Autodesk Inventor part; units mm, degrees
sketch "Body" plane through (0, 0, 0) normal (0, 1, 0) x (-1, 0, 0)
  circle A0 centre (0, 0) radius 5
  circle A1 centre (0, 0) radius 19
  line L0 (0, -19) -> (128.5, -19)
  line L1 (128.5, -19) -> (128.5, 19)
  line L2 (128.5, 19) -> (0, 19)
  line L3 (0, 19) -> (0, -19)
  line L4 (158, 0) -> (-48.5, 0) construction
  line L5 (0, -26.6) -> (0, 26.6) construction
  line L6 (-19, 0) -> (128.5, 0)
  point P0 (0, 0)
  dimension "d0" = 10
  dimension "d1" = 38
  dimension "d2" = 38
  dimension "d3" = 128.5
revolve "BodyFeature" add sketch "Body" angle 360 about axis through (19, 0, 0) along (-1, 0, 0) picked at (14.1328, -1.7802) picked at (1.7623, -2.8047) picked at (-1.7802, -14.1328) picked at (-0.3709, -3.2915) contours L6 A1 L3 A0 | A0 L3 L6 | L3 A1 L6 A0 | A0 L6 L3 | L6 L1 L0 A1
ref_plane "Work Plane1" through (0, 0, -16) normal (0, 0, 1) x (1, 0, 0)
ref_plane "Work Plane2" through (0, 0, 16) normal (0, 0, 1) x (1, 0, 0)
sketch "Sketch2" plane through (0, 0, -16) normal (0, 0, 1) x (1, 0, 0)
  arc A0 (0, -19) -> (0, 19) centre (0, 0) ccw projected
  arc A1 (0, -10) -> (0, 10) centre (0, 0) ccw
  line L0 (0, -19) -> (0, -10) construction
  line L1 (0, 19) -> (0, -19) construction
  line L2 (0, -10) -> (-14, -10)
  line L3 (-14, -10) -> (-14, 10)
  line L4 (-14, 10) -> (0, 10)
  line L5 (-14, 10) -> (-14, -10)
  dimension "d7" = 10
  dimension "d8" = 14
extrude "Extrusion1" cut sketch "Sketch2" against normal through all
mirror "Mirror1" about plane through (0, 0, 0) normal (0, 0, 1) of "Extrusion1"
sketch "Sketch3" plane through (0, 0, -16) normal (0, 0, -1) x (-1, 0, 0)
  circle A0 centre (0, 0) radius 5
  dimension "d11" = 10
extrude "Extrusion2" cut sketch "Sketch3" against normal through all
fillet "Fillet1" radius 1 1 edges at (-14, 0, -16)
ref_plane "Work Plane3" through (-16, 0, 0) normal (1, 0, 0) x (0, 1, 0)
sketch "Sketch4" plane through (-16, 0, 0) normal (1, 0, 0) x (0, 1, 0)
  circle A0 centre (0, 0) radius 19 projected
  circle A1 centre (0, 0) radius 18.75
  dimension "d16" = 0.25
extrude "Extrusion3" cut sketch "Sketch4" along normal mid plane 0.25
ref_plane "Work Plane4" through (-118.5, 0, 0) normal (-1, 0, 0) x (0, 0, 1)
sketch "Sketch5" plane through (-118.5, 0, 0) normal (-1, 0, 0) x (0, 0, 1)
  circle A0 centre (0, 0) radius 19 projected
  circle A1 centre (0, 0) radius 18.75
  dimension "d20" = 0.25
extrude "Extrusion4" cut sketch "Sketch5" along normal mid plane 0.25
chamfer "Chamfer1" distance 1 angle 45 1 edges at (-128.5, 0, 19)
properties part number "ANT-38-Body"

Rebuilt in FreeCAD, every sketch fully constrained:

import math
import FreeCAD as App
import Part
import Sketcher

V = App.Vector


def edges_at(feature, points):
    """Names of the edges that pass closest to the given points."""
    edges = feature.Shape.Edges
    near = lambda p: min(range(len(edges)), key=lambda i: edges[i].distToShape(Part.Vertex(*p))[0])
    return sorted({f"Edge{near(p) + 1}" for p in points})

doc = App.newDocument("Part")
body = doc.addObject("PartDesign::Body", "Body")

sketch1 = body.newObject("Sketcher::SketchObject", "Sketch")
sketch1.AttachmentSupport = (doc.getObject("XZ_Plane"), [""])
sketch1.MapMode = "FlatFace"
sketch1.addGeometry([
    Part.ArcOfCircle(Part.Circle(V(0, 0, 0), V(0, 0, 1), 19), math.radians(-90), math.radians(0)),
    Part.LineSegment(V(0, -19, 0), V(-128, -19, 0)),
    Part.LineSegment(V(-128, -19, 0), V(-128, 0, 0)),
    Part.LineSegment(V(-128, 0, 0), V(19, 0, 0)),
], False)
sketch1.addConstraint([
    Sketcher.Constraint("Tangent", 0, 1, 1, 1),
    Sketcher.Constraint("Coincident", 1, 2, 2, 1),
    Sketcher.Constraint("Coincident", 2, 2, 3, 1),
    Sketcher.Constraint("Coincident", 3, 2, 0, 2),
    Sketcher.Constraint("Horizontal", 1),
    Sketcher.Constraint("Vertical", 2),
    Sketcher.Constraint("Horizontal", 3),
    Sketcher.Constraint("Coincident", 0, 3, -1, 1),
    Sketcher.Constraint("PointOnObject", 2, 2, -1),
    Sketcher.Constraint("Radius", 0, 19.0),
    Sketcher.Constraint("DistanceX", 1, 2, 1, 1, 128.5),
])
revolution = body.newObject("PartDesign::Revolution", "Revolution")
revolution.Profile = sketch1
revolution.ReferenceAxis = (sketch1, ["H_Axis"])
revolution.Angle = 360

sketch2 = body.newObject("Sketcher::SketchObject", "Sketch001")
sketch2.AttachmentSupport = (doc.getObject("XY_Plane"), [""])
sketch2.MapMode = "FlatFace"
sketch2.AttachmentOffset = App.Placement(V(0, 0, -16), App.Rotation())
sketch2.addGeometry([
    Part.LineSegment(V(-14, -10, 0), V(0, -10, 0)),
    Part.ArcOfCircle(Part.Circle(V(0, 0, 0), V(0, 0, 1), 10), math.radians(-90), math.radians(90)),
    Part.LineSegment(V(0, 10, 0), V(-14, 10, 0)),
    Part.LineSegment(V(-14, 10, 0), V(-14, -10, 0)),
], False)
sketch2.addConstraint([
    Sketcher.Constraint("Tangent", 0, 2, 1, 1),
    Sketcher.Constraint("Tangent", 1, 2, 2, 1),
    Sketcher.Constraint("Coincident", 2, 2, 3, 1),
    Sketcher.Constraint("Coincident", 3, 2, 0, 1),
    Sketcher.Constraint("Horizontal", 0),
    Sketcher.Constraint("Horizontal", 2),
    Sketcher.Constraint("Vertical", 3),
    Sketcher.Constraint("Coincident", 1, 3, -1, 1),
    Sketcher.Constraint("Radius", 1, 10.0),
    Sketcher.Constraint("DistanceX", 0, 1, 0, 2, 14.0),
])
pocket1 = body.newObject("PartDesign::Pocket", "Pocket")
pocket1.Profile = sketch2
pocket1.Type = "ThroughAll"
doc.recompute()

mirrored = body.newObject("PartDesign::Mirrored", "Mirrored")
mirrored.Originals = [pocket1]
mirrored.MirrorPlane = (doc.getObject("XY_Plane"), [""])
body.Tip = mirrored

sketch3 = body.newObject("Sketcher::SketchObject", "Sketch002")
sketch3.AttachmentSupport = (doc.getObject("XY_Plane"), [""])
sketch3.MapMode = "FlatFace"
sketch3.AttachmentOffset = App.Placement(V(0, 0, -16), App.Rotation())
sketch3.addGeometry(Part.Circle(V(0, 0, 0), V(0, 0, 1), 5), False)
sketch3.addConstraint([
    Sketcher.Constraint("Coincident", 0, 3, -1, 1),
    Sketcher.Constraint("Diameter", 0, 10.0),
])
pocket2 = body.newObject("PartDesign::Pocket", "Pocket001")
pocket2.Profile = sketch3
pocket2.Type = "ThroughAll"
pocket2.Reversed = True
doc.recompute()

fillet = body.newObject("PartDesign::Fillet", "Fillet")
fillet.Base = (pocket2, edges_at(pocket2, [(-14, 0, -16)]))
fillet.Radius = 1

sketch4 = body.newObject("Sketcher::SketchObject", "Sketch003")
sketch4.AttachmentSupport = (doc.getObject("YZ_Plane"), [""])
sketch4.MapMode = "FlatFace"
sketch4.AttachmentOffset = App.Placement(V(0, 0, -16), App.Rotation())
sketch4.addGeometry([
    Part.Circle(V(0, 0, 0), V(0, 0, 1), 19),
    Part.Circle(V(0, 0, 0), V(0, 0, 1), 19),
], False)
sketch4.addConstraint([
    Sketcher.Constraint("Coincident", 0, 3, -1, 1),
    Sketcher.Constraint("Coincident", 1, 3, -1, 1),
    Sketcher.Constraint("Diameter", 0, 38.0),
    Sketcher.Constraint("Diameter", 1, 37.5),
])
pocket3 = body.newObject("PartDesign::Pocket", "Pocket002")
pocket3.Profile = sketch4
pocket3.Length = 0.25
pocket3.Midplane = True

sketch5 = body.newObject("Sketcher::SketchObject", "Sketch004")
sketch5.AttachmentSupport = (doc.getObject("YZ_Plane"), [""])
sketch5.MapMode = "FlatFace"
sketch5.AttachmentOffset = App.Placement(V(0, 0, -118.5), App.Rotation())
sketch5.addGeometry([
    Part.Circle(V(0, 0, 0), V(0, 0, 1), 19),
    Part.Circle(V(0, 0, 0), V(0, 0, 1), 19),
], False)
sketch5.addConstraint([
    Sketcher.Constraint("Coincident", 0, 3, -1, 1),
    Sketcher.Constraint("Coincident", 1, 3, -1, 1),
    Sketcher.Constraint("Diameter", 0, 38.0),
    Sketcher.Constraint("Diameter", 1, 37.5),
])
pocket4 = body.newObject("PartDesign::Pocket", "Pocket003")
pocket4.Profile = sketch5
pocket4.Length = 0.25
pocket4.Midplane = True
doc.recompute()

chamfer = body.newObject("PartDesign::Chamfer", "Chamfer")
chamfer.Base = (pocket4, edges_at(pocket4, [(-128.5, 0, 19)]))
chamfer.Size = 1

doc.recompute()
